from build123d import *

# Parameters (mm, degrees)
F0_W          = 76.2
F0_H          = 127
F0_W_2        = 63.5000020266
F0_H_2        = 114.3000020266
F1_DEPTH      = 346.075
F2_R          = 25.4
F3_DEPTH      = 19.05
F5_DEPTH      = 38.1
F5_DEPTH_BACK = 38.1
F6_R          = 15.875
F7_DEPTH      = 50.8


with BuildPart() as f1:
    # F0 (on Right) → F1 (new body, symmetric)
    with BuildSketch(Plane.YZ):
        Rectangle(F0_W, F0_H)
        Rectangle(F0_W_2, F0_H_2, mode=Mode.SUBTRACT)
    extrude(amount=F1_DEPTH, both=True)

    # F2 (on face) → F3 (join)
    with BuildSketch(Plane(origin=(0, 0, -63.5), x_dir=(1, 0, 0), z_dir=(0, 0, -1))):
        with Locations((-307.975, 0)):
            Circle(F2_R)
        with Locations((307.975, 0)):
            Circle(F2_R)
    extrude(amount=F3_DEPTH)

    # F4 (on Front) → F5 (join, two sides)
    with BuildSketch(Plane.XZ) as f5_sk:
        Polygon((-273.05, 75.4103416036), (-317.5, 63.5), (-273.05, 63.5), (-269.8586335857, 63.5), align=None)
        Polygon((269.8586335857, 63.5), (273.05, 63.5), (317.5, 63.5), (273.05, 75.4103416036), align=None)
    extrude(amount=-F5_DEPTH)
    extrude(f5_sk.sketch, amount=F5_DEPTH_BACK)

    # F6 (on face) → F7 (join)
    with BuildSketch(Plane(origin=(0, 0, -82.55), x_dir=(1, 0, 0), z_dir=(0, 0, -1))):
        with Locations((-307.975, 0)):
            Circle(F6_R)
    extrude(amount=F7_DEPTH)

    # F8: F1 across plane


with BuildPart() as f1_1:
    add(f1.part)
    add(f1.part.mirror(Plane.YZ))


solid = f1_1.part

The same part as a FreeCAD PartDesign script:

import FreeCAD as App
import Part
import Sketcher
Q = App.Units.Quantity

doc = App.newDocument("Part")
body = doc.addObject("PartDesign::Body", "Body")

# Sketch on YZ plane
sketch1 = doc.addObject("Sketcher::SketchObject", "Sketch")
body.addObject(sketch1)
sketch1.AttachmentSupport = (doc.YZ_Plane, [""])
sketch1.MapMode = "FlatFace"
sketch1.addGeometry([
    Part.LineSegment(App.Vector(-38, 64, 0), App.Vector(-38, -64, 0)),  # 0
    Part.LineSegment(App.Vector(-38, -64, 0), App.Vector(38, -64, 0)),  # 1
    Part.LineSegment(App.Vector(38, -64, 0), App.Vector(38, 64, 0)),  # 2
    Part.LineSegment(App.Vector(38, 64, 0), App.Vector(-38, 64, 0)),  # 3
    Part.LineSegment(App.Vector(32, -57, 0), App.Vector(-32, -57, 0)),  # 4
    Part.LineSegment(App.Vector(-32, -57, 0), App.Vector(-32, 57, 0)),  # 5
    Part.LineSegment(App.Vector(-32, 57, 0), App.Vector(32, 57, 0)),  # 6
    Part.LineSegment(App.Vector(32, 57, 0), App.Vector(32, -57, 0)),  # 7
], False)
sketch1.addConstraint([
    Sketcher.Constraint("Coincident", 0, 2, 1, 1),
    Sketcher.Constraint("Coincident", 1, 2, 2, 1),
    Sketcher.Constraint("Coincident", 2, 2, 3, 1),
    Sketcher.Constraint("Coincident", 3, 2, 0, 1),
    Sketcher.Constraint("Coincident", 4, 2, 5, 1),
    Sketcher.Constraint("Coincident", 5, 2, 6, 1),
    Sketcher.Constraint("Coincident", 6, 2, 7, 1),
    Sketcher.Constraint("Coincident", 7, 2, 4, 1),
    Sketcher.Constraint("Vertical", 0),
    Sketcher.Constraint("Horizontal", 1),
    Sketcher.Constraint("Vertical", 2),
    Sketcher.Constraint("Horizontal", 3),
    Sketcher.Constraint("Horizontal", 4),
    Sketcher.Constraint("Vertical", 5),
    Sketcher.Constraint("Horizontal", 6),
    Sketcher.Constraint("Vertical", 7),
    Sketcher.Constraint("Symmetric", 0, 2, 2, 2, -1, 1),
    Sketcher.Constraint("Symmetric", 4, 2, 6, 2, -1, 1),
    Sketcher.Constraint("DistanceX", 1, 1, 1, 2, Q("3 in")),
    Sketcher.Constraint("DistanceY", 0, 2, 0, 1, Q("5 in")),
    Sketcher.Constraint("DistanceX", 4, 2, 4, 1, Q("2.5000001 in")),
    Sketcher.Constraint("DistanceY", 5, 1, 5, 2, Q("4.5000001 in")),
])
pad1 = doc.addObject("PartDesign::Pad", "Pad")
body.addObject(pad1)
pad1.Profile = sketch1
pad1.Length = Q("27.25 in")
pad1.Midplane = True

# Sketch on XY plane
sketch2 = doc.addObject("Sketcher::SketchObject", "Sketch001")
body.addObject(sketch2)
sketch2.AttachmentSupport = (doc.XY_Plane, [""])
sketch2.MapMode = "FlatFace"
sketch2.AttachmentOffset = App.Placement(App.Vector(0, 0, -2.5 * 25.4), App.Rotation())
sketch2.addGeometry([
    Part.Circle(App.Vector(-308, 0, 0), App.Vector(0, 0, 1), 25),
    Part.Circle(App.Vector(308, 0, 0), App.Vector(0, 0, 1), 25),
], False)
sketch2.addConstraint([
    Sketcher.Constraint("Equal", 0, 1),
    Sketcher.Constraint("Symmetric", 0, 3, 1, 3, -1, 1),
    Sketcher.Constraint("PointOnObject", 0, 3, -1),
    Sketcher.Constraint("Diameter", 0, Q("2 in")),
    Sketcher.Constraint("DistanceX", 0, 3, 1, 3, Q("24.25 in")),
])
pad2 = doc.addObject("PartDesign::Pad", "Pad001")
body.addObject(pad2)
pad2.Profile = sketch2
pad2.Length = Q("0.75 in")
pad2.Reversed = True

# Sketch on XZ plane
sketch3 = doc.addObject("Sketcher::SketchObject", "Sketch002")
body.addObject(sketch3)
sketch3.AttachmentSupport = (doc.XZ_Plane, [""])
sketch3.MapMode = "FlatFace"
sketch3.addGeometry([
    Part.LineSegment(App.Vector(-273, 75, 0), App.Vector(-318, 64, 0)),  # 0
    Part.LineSegment(App.Vector(-318, 64, 0), App.Vector(-270, 64, 0)),  # 1
    Part.LineSegment(App.Vector(-270, 64, 0), App.Vector(-273, 75, 0)),  # 2
    Part.LineSegment(App.Vector(270, 64, 0), App.Vector(318, 64, 0)),  # 3
    Part.LineSegment(App.Vector(318, 64, 0), App.Vector(273, 75, 0)),  # 4
    Part.LineSegment(App.Vector(273, 75, 0), App.Vector(270, 64, 0)),  # 5
], False)
sketch3.addConstraint([
    Sketcher.Constraint("Coincident", 0, 2, 1, 1),
    Sketcher.Constraint("Coincident", 1, 2, 2, 1),
    Sketcher.Constraint("Coincident", 2, 2, 0, 1),
    Sketcher.Constraint("Coincident", 3, 2, 4, 1),
    Sketcher.Constraint("Coincident", 4, 2, 5, 1),
    Sketcher.Constraint("Coincident", 5, 2, 3, 1),
    Sketcher.Constraint("Horizontal", 1),
    Sketcher.Constraint("Horizontal", 3),
    Sketcher.Constraint("Symmetric", 0, 2, 3, 2, -2),
    Sketcher.Constraint("Symmetric", 2, 2, 4, 2, -2),
    Sketcher.Constraint("Perpendicular", 0, 2),
    Sketcher.Constraint("Perpendicular", 4, 5),
    Sketcher.Constraint("Angle", 0, Q("-165 deg")),
    Sketcher.Constraint("DistanceX", 0, 2, 3, 2, Q("25 in")),
    Sketcher.Constraint("DistanceY", -1, 1, 0, 2, Q("2.5 in")),
    Sketcher.Constraint("DistanceX", 2, 2, 4, 2, Q("21.5 in")),
])
pad3 = doc.addObject("PartDesign::Pad", "Pad002")
body.addObject(pad3)
pad3.Profile = sketch3
pad3.Type = "TwoLengths"
pad3.Length = Q("1.5 in")
pad3.Length2 = Q("1.5 in")
pad3.Reversed = True

# Sketch on XY plane
sketch4 = doc.addObject("Sketcher::SketchObject", "Sketch003")
body.addObject(sketch4)
sketch4.AttachmentSupport = (doc.XY_Plane, [""])
sketch4.MapMode = "FlatFace"
sketch4.AttachmentOffset = App.Placement(App.Vector(0, 0, -3.25 * 25.4), App.Rotation())
sketch4.addGeometry(Part.Circle(App.Vector(-308, 0, 0), App.Vector(0, 0, 1), 16), False)
sketch4.addConstraint([
    Sketcher.Constraint("PointOnObject", 0, 3, -1),
    Sketcher.Constraint("Diameter", 0, Q("1.25 in")),
    Sketcher.Constraint("DistanceX", 0, 3, -1, 1, Q("12.125 in")),
])
pad4 = doc.addObject("PartDesign::Pad", "Pad003")
body.addObject(pad4)
pad4.Profile = sketch4
pad4.Length = Q("2 in")
pad4.Reversed = True
body2 = doc.addObject("PartDesign::Body", "Body001")
doc.recompute()

body2.BaseFeature = body
doc.recompute()

mirroring = doc.addObject("Part::Mirroring", "Mirroring")
mirroring.Source = body
mirroring.Base = App.Vector(0, 0, 0)
mirroring.Normal = App.Vector(1, 0, 0)
body3 = doc.addObject("PartDesign::Body", "Body002")
body3.BaseFeature = mirroring
boolean = doc.addObject("PartDesign::Boolean", "Boolean")
body2.addObject(boolean)
boolean.Type = "Fuse"
boolean.addObjects([body3])
doc.recompute()
mirroring.Visibility = False

doc.recompute()
